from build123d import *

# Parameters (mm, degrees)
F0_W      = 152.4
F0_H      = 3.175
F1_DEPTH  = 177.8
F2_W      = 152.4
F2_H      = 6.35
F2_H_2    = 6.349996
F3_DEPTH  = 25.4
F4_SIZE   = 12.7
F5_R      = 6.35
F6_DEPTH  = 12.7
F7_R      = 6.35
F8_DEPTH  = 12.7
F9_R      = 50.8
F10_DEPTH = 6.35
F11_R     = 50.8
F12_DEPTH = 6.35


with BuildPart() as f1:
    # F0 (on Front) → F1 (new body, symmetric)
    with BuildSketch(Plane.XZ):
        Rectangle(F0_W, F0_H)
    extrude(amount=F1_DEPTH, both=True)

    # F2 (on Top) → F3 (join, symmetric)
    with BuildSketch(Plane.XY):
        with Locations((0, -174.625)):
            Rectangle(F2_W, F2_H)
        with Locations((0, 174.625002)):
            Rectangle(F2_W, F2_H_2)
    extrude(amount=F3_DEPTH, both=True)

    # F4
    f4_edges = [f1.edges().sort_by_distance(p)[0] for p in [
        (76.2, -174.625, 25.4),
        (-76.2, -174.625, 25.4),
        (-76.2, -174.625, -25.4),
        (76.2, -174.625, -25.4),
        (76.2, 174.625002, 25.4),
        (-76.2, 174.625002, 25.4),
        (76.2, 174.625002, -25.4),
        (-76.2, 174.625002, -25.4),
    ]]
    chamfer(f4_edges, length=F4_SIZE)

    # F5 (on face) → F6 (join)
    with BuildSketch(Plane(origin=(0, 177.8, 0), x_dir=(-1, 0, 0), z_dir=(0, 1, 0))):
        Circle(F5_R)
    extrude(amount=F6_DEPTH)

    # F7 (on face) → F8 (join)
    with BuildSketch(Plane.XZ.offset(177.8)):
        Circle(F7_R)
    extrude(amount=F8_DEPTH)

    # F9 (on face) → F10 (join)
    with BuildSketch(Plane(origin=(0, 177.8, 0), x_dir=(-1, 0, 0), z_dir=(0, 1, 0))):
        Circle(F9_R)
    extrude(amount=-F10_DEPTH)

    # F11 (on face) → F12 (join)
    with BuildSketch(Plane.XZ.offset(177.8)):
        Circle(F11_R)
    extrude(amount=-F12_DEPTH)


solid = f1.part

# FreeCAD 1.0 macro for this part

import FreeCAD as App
import Part
import Sketcher

V = App.Vector
Q = App.Units.Quantity


def edges_at(feature, points):
    """Names of the edges that pass closest to the given points."""
    edges = feature.Shape.Edges
    near = lambda p: min(range(len(edges)), key=lambda i: edges[i].distToShape(Part.Vertex(*p))[0])
    return sorted({f"Edge{near(p) + 1}" for p in points})

doc = App.newDocument("Part")
body = doc.addObject("PartDesign::Body", "Body")

# Sketch on XZ plane
sketch1 = body.newObject("Sketcher::SketchObject", "Sketch")
sketch1.AttachmentSupport = (doc.getObject("XZ_Plane"), [""])
sketch1.MapMode = "FlatFace"
sketch1.addGeometry([
    Part.LineSegment(V(-76.2, 1.6, 0), V(-76.2, -1.6, 0)),
    Part.LineSegment(V(-76.2, -1.6, 0), V(76.2, -1.6, 0)),
    Part.LineSegment(V(76.2, -1.6, 0), V(76.2, 1.6, 0)),
    Part.LineSegment(V(76.2, 1.6, 0), V(-76.2, 1.6, 0)),
], False)
sketch1.addConstraint([
    Sketcher.Constraint("Coincident", 0, 2, 1, 1),
    Sketcher.Constraint("Coincident", 1, 2, 2, 1),
    Sketcher.Constraint("Coincident", 2, 2, 3, 1),
    Sketcher.Constraint("Coincident", 3, 2, 0, 1),
    Sketcher.Constraint("Vertical", 0),
    Sketcher.Constraint("Horizontal", 1),
    Sketcher.Constraint("Vertical", 2),
    Sketcher.Constraint("Horizontal", 3),
    Sketcher.Constraint("Symmetric", 0, 2, 2, 2, -1, 1),
    Sketcher.Constraint("DistanceX", 1, 1, 1, 2, Q("6 in")),
    Sketcher.Constraint("DistanceY", 0, 2, 0, 1, Q("0.125 in")),
])
pad1 = body.newObject("PartDesign::Pad", "Pad")
pad1.Profile = sketch1
pad1.Length = Q("14 in")
pad1.Midplane = True

# Sketch on XY plane
sketch2 = body.newObject("Sketcher::SketchObject", "Sketch001")
sketch2.AttachmentSupport = (doc.getObject("XY_Plane"), [""])
sketch2.MapMode = "FlatFace"
sketch2.addGeometry([
    Part.LineSegment(V(-76, -171, 0), V(-76, -178, 0)),  # 0
    Part.LineSegment(V(-76, -178, 0), V(76, -178, 0)),  # 1
    Part.LineSegment(V(76, -178, 0), V(76, -171, 0)),  # 2
    Part.LineSegment(V(76, -171, 0), V(-76, -171, 0)),  # 3
    Part.LineSegment(V(-76, 178, 0), V(-76, 171, 0)),  # 4
    Part.LineSegment(V(-76, 171, 0), V(76, 171, 0)),  # 5
    Part.LineSegment(V(76, 171, 0), V(76, 178, 0)),  # 6
    Part.LineSegment(V(76, 178, 0), V(-76, 178, 0)),  # 7
], False)
sketch2.addConstraint([
    Sketcher.Constraint("Coincident", 0, 2, 1, 1),
    Sketcher.Constraint("Coincident", 1, 2, 2, 1),
    Sketcher.Constraint("Coincident", 2, 2, 3, 1),
    Sketcher.Constraint("Coincident", 3, 2, 0, 1),
    Sketcher.Constraint("Coincident", 4, 2, 5, 1),
    Sketcher.Constraint("Coincident", 5, 2, 6, 1),
    Sketcher.Constraint("Coincident", 6, 2, 7, 1),
    Sketcher.Constraint("Coincident", 7, 2, 4, 1),
    Sketcher.Constraint("Vertical", 0),
    Sketcher.Constraint("Horizontal", 1),
    Sketcher.Constraint("Vertical", 2),
    Sketcher.Constraint("Horizontal", 3),
    Sketcher.Constraint("Vertical", 4),
    Sketcher.Constraint("Horizontal", 5),
    Sketcher.Constraint("Vertical", 6),
    Sketcher.Constraint("Horizontal", 7),
    Sketcher.Constraint("Symmetric", 2, 2, 4, 2, -1, 1),
    Sketcher.Constraint("Symmetric", 0, 2, 6, 2, -1, 1),
    Sketcher.Constraint("Vertical", 3, 2, 4, 2),
    Sketcher.Constraint("DistanceX", 1, 1, 1, 2, Q("6 in")),
    Sketcher.Constraint("DistanceY", 0, 2, -1, 1, Q("7 in")),
    Sketcher.Constraint("DistanceY", 0, 2, 0, 1, Q("0.25 in")),
])
pad2 = body.newObject("PartDesign::Pad", "Pad001")
pad2.Profile = sketch2
pad2.Length = Q("2 in")
pad2.Midplane = True
doc.recompute()

chamfer = body.newObject("PartDesign::Chamfer", "Chamfer")
chamfer.Base = (pad2, edges_at(pad2, [
    (76.2, -174.625, 25.4),
    (-76.2, -174.625, 25.4),
    (-76.2, -174.625, -25.4),
    (76.2, -174.625, -25.4),
    (76.2, 174.625, 25.4),
    (-76.2, 174.625, 25.4),
    (76.2, 174.625, -25.4),
    (-76.2, 174.625, -25.4),
]))
chamfer.Size = Q("0.5 in")

# Sketch on XZ plane
sketch3 = body.newObject("Sketcher::SketchObject", "Sketch002")
sketch3.AttachmentSupport = (doc.getObject("XZ_Plane"), [""])
sketch3.MapMode = "FlatFace"
sketch3.AttachmentOffset = App.Placement(V(0, 0, -7 * 25.4), App.Rotation())
sketch3.addGeometry(Part.Circle(V(0, 0, 0), V(0, 0, 1), 6), False)
sketch3.addConstraint([
    Sketcher.Constraint("Coincident", 0, 3, -1, 1),
    Sketcher.Constraint("Diameter", 0, Q("0.5 in")),
])
pad3 = body.newObject("PartDesign::Pad", "Pad002")
pad3.Profile = sketch3
pad3.Length = Q("0.5 in")
pad3.Reversed = True

# Sketch on XZ plane
sketch4 = body.newObject("Sketcher::SketchObject", "Sketch003")
sketch4.AttachmentSupport = (doc.getObject("XZ_Plane"), [""])
sketch4.MapMode = "FlatFace"
sketch4.AttachmentOffset = App.Placement(V(0, 0, 7 * 25.4), App.Rotation())
sketch4.addGeometry(Part.Circle(V(0, 0, 0), V(0, 0, 1), 6), False)
sketch4.addConstraint([
    Sketcher.Constraint("Coincident", 0, 3, -1, 1),
    Sketcher.Constraint("Diameter", 0, Q("0.5 in")),
])
pad4 = body.newObject("PartDesign::Pad", "Pad003")
pad4.Profile = sketch4
pad4.Length = Q("0.5 in")

# Sketch on XZ plane
sketch5 = body.newObject("Sketcher::SketchObject", "Sketch004")
sketch5.AttachmentSupport = (doc.getObject("XZ_Plane"), [""])
sketch5.MapMode = "FlatFace"
sketch5.AttachmentOffset = App.Placement(V(0, 0, -7 * 25.4), App.Rotation())
sketch5.addGeometry(Part.Circle(V(0, 0, 0), V(0, 0, 1), 51), False)
sketch5.addConstraint([
    Sketcher.Constraint("Coincident", 0, 3, -1, 1),
    Sketcher.Constraint("Diameter", 0, Q("4 in")),
])
pad5 = body.newObject("PartDesign::Pad", "Pad004")
pad5.Profile = sketch5
pad5.Length = Q("0.25 in")

# Sketch on XZ plane
sketch6 = body.newObject("Sketcher::SketchObject", "Sketch005")
sketch6.AttachmentSupport = (doc.getObject("XZ_Plane"), [""])
sketch6.MapMode = "FlatFace"
sketch6.AttachmentOffset = App.Placement(V(0, 0, 7 * 25.4), App.Rotation())
sketch6.addGeometry(Part.Circle(V(0, 0, 0), V(0, 0, 1), 51), False)
sketch6.addConstraint([
    Sketcher.Constraint("Coincident", 0, 3, -1, 1),
    Sketcher.Constraint("Diameter", 0, Q("4 in")),
])
pad6 = body.newObject("PartDesign::Pad", "Pad005")
pad6.Profile = sketch6
pad6.Length = Q("0.25 in")
pad6.Reversed = True

doc.recompute()
